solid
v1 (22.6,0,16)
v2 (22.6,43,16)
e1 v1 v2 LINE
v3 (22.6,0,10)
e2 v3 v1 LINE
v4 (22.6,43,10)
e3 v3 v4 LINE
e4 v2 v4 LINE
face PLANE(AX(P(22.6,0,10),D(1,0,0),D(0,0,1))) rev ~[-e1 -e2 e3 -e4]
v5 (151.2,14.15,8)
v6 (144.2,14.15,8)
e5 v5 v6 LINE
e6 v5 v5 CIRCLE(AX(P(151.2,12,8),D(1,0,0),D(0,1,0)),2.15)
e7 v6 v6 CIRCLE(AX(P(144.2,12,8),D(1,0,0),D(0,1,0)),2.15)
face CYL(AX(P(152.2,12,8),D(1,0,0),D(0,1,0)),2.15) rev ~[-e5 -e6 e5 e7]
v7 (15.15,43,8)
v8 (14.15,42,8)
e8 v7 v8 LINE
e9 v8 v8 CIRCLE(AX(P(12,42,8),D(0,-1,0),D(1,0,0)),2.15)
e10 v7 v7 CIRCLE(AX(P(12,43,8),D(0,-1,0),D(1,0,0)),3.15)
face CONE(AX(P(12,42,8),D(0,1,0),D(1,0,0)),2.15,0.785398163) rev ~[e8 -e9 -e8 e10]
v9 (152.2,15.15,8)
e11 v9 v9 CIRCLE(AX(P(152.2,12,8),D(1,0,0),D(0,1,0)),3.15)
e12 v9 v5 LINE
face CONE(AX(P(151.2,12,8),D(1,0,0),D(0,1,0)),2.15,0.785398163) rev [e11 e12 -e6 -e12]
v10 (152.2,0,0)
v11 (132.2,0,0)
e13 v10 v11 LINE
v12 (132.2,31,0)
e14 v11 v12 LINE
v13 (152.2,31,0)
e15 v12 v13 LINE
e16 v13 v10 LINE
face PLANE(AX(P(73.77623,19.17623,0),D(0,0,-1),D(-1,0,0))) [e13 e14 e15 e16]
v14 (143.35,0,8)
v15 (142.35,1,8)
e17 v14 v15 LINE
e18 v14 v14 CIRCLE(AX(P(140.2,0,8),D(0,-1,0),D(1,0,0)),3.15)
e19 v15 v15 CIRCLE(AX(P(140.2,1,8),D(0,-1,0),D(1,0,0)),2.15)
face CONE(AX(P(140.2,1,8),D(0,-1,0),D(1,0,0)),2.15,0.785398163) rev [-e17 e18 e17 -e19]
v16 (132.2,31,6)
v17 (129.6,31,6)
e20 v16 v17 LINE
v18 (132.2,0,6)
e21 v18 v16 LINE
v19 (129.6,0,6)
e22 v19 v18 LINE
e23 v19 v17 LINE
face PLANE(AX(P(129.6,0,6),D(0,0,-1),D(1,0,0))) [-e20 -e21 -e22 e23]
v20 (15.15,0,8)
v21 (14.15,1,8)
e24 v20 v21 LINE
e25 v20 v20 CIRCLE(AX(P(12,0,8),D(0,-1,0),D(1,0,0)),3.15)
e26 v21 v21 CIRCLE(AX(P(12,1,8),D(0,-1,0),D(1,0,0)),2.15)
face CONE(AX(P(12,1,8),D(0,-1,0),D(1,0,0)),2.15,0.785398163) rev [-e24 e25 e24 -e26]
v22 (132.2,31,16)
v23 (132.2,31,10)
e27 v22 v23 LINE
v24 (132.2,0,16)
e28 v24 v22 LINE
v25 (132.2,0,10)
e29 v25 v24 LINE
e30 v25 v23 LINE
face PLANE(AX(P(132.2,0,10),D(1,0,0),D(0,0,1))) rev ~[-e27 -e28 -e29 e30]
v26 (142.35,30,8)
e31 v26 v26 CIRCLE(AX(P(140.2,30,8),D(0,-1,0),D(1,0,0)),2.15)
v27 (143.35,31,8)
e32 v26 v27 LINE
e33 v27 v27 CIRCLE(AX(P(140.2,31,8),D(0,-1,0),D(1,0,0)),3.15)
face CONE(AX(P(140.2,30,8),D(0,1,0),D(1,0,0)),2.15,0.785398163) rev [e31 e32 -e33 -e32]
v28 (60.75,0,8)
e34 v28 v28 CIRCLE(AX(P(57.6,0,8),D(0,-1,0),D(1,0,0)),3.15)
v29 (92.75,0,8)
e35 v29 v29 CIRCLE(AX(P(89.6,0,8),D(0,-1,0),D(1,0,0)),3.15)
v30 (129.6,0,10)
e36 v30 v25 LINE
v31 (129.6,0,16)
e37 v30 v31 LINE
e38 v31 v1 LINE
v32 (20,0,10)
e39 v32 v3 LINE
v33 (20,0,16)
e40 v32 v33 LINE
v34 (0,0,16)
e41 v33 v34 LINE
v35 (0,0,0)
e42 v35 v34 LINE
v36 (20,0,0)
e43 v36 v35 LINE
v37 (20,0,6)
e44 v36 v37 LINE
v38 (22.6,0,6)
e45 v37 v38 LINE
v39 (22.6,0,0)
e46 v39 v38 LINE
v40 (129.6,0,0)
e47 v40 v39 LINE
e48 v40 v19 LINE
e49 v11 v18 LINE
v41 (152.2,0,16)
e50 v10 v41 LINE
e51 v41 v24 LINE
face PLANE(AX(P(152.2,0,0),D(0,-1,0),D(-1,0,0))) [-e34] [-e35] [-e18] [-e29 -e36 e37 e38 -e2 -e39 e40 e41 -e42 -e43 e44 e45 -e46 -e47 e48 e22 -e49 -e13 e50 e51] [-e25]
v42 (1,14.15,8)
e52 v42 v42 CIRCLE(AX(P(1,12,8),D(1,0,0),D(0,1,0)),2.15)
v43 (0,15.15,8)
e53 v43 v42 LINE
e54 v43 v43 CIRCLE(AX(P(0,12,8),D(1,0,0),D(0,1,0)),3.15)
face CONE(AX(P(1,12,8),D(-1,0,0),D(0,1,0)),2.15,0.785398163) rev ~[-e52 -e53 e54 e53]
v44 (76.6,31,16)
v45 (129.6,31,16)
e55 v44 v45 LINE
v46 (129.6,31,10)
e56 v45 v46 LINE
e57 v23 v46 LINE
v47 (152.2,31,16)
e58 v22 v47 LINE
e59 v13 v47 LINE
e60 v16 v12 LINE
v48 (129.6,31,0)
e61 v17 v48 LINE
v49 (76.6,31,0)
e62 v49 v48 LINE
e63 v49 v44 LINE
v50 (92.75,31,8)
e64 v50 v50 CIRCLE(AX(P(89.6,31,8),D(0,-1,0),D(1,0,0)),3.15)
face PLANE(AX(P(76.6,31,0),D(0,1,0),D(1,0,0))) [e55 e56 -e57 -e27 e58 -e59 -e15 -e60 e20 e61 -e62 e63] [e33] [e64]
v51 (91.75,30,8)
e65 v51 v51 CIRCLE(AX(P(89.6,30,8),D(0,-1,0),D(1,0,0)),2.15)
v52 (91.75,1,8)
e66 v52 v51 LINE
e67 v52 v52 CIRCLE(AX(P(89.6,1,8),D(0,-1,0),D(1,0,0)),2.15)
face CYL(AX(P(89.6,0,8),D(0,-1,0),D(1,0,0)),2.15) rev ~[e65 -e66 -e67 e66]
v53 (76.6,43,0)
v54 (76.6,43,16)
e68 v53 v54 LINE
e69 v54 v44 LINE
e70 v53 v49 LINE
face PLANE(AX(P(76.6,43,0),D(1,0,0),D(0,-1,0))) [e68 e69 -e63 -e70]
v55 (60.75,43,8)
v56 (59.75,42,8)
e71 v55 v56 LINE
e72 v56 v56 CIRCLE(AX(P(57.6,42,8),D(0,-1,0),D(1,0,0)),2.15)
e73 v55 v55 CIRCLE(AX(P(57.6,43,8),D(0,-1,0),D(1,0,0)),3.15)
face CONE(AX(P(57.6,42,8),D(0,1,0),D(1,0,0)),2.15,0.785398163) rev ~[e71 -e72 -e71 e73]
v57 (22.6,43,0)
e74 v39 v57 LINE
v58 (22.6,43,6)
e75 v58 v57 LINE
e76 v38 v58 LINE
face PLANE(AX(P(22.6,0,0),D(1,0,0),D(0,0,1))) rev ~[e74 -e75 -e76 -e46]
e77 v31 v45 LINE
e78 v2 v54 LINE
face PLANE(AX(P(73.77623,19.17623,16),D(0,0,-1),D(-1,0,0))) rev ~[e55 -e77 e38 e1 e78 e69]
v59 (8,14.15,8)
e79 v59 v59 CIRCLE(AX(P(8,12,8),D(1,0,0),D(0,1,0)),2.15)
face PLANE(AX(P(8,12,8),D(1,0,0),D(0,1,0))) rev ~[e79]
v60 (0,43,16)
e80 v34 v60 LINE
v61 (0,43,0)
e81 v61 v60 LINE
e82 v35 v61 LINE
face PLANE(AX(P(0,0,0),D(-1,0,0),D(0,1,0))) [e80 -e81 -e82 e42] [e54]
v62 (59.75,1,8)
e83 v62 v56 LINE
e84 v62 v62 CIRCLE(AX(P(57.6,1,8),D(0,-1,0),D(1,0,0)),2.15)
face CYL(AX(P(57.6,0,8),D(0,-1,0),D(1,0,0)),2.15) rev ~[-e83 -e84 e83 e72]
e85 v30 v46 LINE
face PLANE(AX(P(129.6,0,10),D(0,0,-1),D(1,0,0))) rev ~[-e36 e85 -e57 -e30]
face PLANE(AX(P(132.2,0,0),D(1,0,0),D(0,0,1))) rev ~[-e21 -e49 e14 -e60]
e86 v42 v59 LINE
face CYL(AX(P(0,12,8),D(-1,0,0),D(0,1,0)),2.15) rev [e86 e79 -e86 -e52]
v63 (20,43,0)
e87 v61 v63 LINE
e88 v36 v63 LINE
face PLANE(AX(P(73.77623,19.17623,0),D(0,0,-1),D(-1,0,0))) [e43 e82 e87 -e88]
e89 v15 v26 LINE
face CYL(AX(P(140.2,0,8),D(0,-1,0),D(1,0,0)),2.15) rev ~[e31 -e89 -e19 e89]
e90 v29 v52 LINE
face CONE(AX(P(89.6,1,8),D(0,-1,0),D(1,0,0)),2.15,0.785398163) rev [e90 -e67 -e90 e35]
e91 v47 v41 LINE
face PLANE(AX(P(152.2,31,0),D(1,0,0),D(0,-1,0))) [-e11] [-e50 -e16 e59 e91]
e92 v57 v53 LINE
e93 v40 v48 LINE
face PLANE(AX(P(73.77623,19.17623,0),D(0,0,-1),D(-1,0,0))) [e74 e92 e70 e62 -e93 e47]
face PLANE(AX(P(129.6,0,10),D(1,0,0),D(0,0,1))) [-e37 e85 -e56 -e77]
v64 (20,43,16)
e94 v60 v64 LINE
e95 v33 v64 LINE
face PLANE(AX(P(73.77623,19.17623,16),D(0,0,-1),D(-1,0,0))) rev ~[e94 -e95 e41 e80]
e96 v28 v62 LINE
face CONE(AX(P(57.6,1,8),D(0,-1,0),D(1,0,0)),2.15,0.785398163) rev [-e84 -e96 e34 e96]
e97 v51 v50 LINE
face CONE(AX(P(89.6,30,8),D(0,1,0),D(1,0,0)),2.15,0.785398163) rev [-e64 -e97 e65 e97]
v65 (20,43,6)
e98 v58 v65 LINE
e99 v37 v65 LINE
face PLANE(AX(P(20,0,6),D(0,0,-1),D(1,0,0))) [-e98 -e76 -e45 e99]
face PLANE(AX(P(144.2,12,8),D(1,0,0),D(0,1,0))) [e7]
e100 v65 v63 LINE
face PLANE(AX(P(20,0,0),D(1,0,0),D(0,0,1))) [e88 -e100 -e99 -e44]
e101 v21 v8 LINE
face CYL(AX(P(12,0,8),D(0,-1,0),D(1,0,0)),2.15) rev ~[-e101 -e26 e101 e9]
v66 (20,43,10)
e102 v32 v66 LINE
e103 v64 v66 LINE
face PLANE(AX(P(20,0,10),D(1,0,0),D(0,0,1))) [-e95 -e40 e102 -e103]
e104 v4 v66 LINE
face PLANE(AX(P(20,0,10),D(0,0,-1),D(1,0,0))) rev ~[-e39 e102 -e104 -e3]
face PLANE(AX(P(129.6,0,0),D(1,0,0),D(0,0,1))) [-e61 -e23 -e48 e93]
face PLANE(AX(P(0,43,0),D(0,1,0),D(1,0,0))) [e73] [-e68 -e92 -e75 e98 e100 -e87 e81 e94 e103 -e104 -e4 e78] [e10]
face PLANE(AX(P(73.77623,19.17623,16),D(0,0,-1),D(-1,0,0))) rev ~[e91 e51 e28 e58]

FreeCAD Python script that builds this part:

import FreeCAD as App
import Part
import Sketcher

V = App.Vector
Q = App.Units.Quantity


def edges_at(feature, points):
    """Names of the edges that pass closest to the given points."""
    edges = feature.Shape.Edges
    near = lambda p: min(range(len(edges)), key=lambda i: edges[i].distToShape(Part.Vertex(*p))[0])
    return sorted({f"Edge{near(p) + 1}" for p in points})

doc = App.newDocument("Part")
body = doc.addObject("PartDesign::Body", "Body")

# Sketch on XY plane
sketch1 = body.newObject("Sketcher::SketchObject", "Sketch")
sketch1.AttachmentSupport = (doc.getObject("XY_Plane"), [""])
sketch1.MapMode = "FlatFace"
sketch1.addGeometry([
    Part.LineSegment(V(0, 43, 0), V(0, 0, 0)),  # 0
    Part.LineSegment(V(0, 0, 0), V(152, 0, 0)),  # 1
    Part.LineSegment(V(152, 0, 0), V(152, 31, 0)),  # 2
    Part.LineSegment(V(152, 31, 0), V(77, 31, 0)),  # 3
    Part.LineSegment(V(77, 31, 0), V(77, 43, 0)),  # 4
    Part.LineSegment(V(77, 43, 0), V(0, 43, 0)),  # 5
], False)
sketch1.addConstraint([
    Sketcher.Constraint("Coincident", 0, 2, 1, 1),
    Sketcher.Constraint("Coincident", 1, 2, 2, 1),
    Sketcher.Constraint("Coincident", 2, 2, 3, 1),
    Sketcher.Constraint("Coincident", 3, 2, 4, 1),
    Sketcher.Constraint("Coincident", 4, 2, 5, 1),
    Sketcher.Constraint("Coincident", 5, 2, 0, 1),
    Sketcher.Constraint("Vertical", 0),
    Sketcher.Constraint("Horizontal", 1),
    Sketcher.Constraint("Vertical", 2),
    Sketcher.Constraint("Horizontal", 3),
    Sketcher.Constraint("Vertical", 4),
    Sketcher.Constraint("Horizontal", 5),
    Sketcher.Constraint("Coincident", 0, 2, -1, 1),
    Sketcher.Constraint("DistanceY", 0, 2, 0, 1, Q("43 mm")),
    Sketcher.Constraint("DistanceY", 2, 1, 2, 2, Q("31 mm")),
    Sketcher.Constraint("DistanceX", 1, 1, 1, 2, Q("152.2 mm")),
    Sketcher.Constraint("DistanceX", 3, 2, 3, 1, Q("75.6 mm")),
])
pad1 = body.newObject("PartDesign::Pad", "Pad")
pad1.Profile = sketch1
pad1.Length = 16

# Sketch on XZ plane
sketch2 = body.newObject("Sketcher::SketchObject", "Sketch001")
sketch2.AttachmentSupport = (doc.getObject("XZ_Plane"), [""])
sketch2.MapMode = "FlatFace"
sketch2.addGeometry([
    Part.Circle(V(12, 8, 0), V(0, 0, 1), 2.1),  # 0
    Part.Circle(V(89.6, 8, 0), V(0, 0, 1), 2.1),  # 1
    Part.Circle(V(140.2, 8, 0), V(0, 0, 1), 2.1),  # 2
    Part.Circle(V(57.6, 8, 0), V(0, 0, 1), 2.1),  # 3
    Part.LineSegment(V(20, 6, 0), V(20, 0, 0)),  # 4
    Part.LineSegment(V(20, 0, 0), V(22.6, 0, 0)),  # 5
    Part.LineSegment(V(22.6, 0, 0), V(22.6, 6, 0)),  # 6
    Part.LineSegment(V(22.6, 6, 0), V(20, 6, 0)),  # 7
    Part.LineSegment(V(20, 16, 0), V(20, 10, 0)),  # 8
    Part.LineSegment(V(20, 10, 0), V(22.6, 10, 0)),  # 9
    Part.LineSegment(V(22.6, 10, 0), V(22.6, 16, 0)),  # 10
    Part.LineSegment(V(22.6, 16, 0), V(20, 16, 0)),  # 11
    Part.LineSegment(V(129.6, 16, 0), V(129.6, 10, 0)),  # 12
    Part.LineSegment(V(129.6, 10, 0), V(132.2, 10, 0)),  # 13
    Part.LineSegment(V(132.2, 10, 0), V(132.2, 16, 0)),  # 14
    Part.LineSegment(V(132.2, 16, 0), V(129.6, 16, 0)),  # 15
    Part.LineSegment(V(129.6, 6, 0), V(129.6, 0, 0)),  # 16
    Part.LineSegment(V(129.6, 0, 0), V(132.2, 0, 0)),  # 17
    Part.LineSegment(V(132.2, 0, 0), V(132.2, 6, 0)),  # 18
    Part.LineSegment(V(132.2, 6, 0), V(129.6, 6, 0)),  # 19
], False)
sketch2.addConstraint([
    Sketcher.Constraint("Coincident", 4, 2, 5, 1),
    Sketcher.Constraint("Coincident", 5, 2, 6, 1),
    Sketcher.Constraint("Coincident", 6, 2, 7, 1),
    Sketcher.Constraint("Coincident", 7, 2, 4, 1),
    Sketcher.Constraint("Coincident", 8, 2, 9, 1),
    Sketcher.Constraint("Coincident", 9, 2, 10, 1),
    Sketcher.Constraint("Coincident", 10, 2, 11, 1),
    Sketcher.Constraint("Coincident", 11, 2, 8, 1),
    Sketcher.Constraint("Coincident", 12, 2, 13, 1),
    Sketcher.Constraint("Coincident", 13, 2, 14, 1),
    Sketcher.Constraint("Coincident", 14, 2, 15, 1),
    Sketcher.Constraint("Coincident", 15, 2, 12, 1),
    Sketcher.Constraint("Coincident", 16, 2, 17, 1),
    Sketcher.Constraint("Coincident", 17, 2, 18, 1),
    Sketcher.Constraint("Coincident", 18, 2, 19, 1),
    Sketcher.Constraint("Coincident", 19, 2, 16, 1),
    Sketcher.Constraint("Vertical", 4),
    Sketcher.Constraint("Horizontal", 5),
    Sketcher.Constraint("Vertical", 6),
    Sketcher.Constraint("Horizontal", 7),
    Sketcher.Constraint("Vertical", 8),
    Sketcher.Constraint("Horizontal", 9),
    Sketcher.Constraint("Vertical", 10),
    Sketcher.Constraint("Horizontal", 11),
    Sketcher.Constraint("Vertical", 12),
    Sketcher.Constraint("Horizontal", 13),
    Sketcher.Constraint("Vertical", 14),
    Sketcher.Constraint("Horizontal", 15),
    Sketcher.Constraint("Vertical", 16),
    Sketcher.Constraint("Horizontal", 17),
    Sketcher.Constraint("Vertical", 18),
    Sketcher.Constraint("Horizontal", 19),
    Sketcher.Constraint("Equal", 0, 1),
    Sketcher.Constraint("Equal", 1, 2),
    Sketcher.Constraint("Equal", 2, 3),
    Sketcher.Constraint("PointOnObject", 4, 2, -1),
    Sketcher.Constraint("PointOnObject", 16, 2, -1),
    Sketcher.Constraint("Horizontal", 0, 3, 1, 3),
    Sketcher.Constraint("Horizontal", 1, 3, 2, 3),
    Sketcher.Constraint("Horizontal", 2, 3, 3, 3),
    Sketcher.Constraint("Horizontal", 9, 2, 12, 2),
    Sketcher.Constraint("Horizontal", 11, 2, 14, 2),
    Sketcher.Constraint("Horizontal", 7, 2, 18, 2),
    Sketcher.Constraint("Vertical", 7, 2, 8, 2),
    Sketcher.Constraint("Vertical", 6, 2, 9, 2),
    Sketcher.Constraint("Vertical", 15, 2, 16, 2),
    Sketcher.Constraint("Vertical", 14, 2, 17, 2),
    Sketcher.Constraint("Equal", 11, 13),
    Sketcher.Constraint("Equal", 6, 8),
    Sketcher.Constraint("Diameter", 0, Q("4.3 mm")),
    Sketcher.Constraint("DistanceY", 4, 2, 4, 1, Q("6 mm")),
    Sketcher.Constraint("DistanceX", 5, 1, 5, 2, Q("2.6 mm")),
    Sketcher.Constraint("DistanceX", -1, 1, 0, 3, Q("12 mm")),
    Sketcher.Constraint("DistanceY", -1, 1, 0, 3, Q("8 mm")),
    Sketcher.Constraint("DistanceX", -1, 1, 4, 2, Q("20 mm")),
    Sketcher.Constraint("DistanceY", -1, 1, 8, 2, Q("10 mm")),
    Sketcher.Constraint("DistanceX", 3, 3, 1, 3, Q("32 mm")),
    Sketcher.Constraint("DistanceX", 5, 2, 3, 3, Q("35 mm")),
    Sketcher.Constraint("DistanceX", 1, 3, 12, 2, Q("40 mm")),
    Sketcher.Constraint("DistanceX", 13, 2, 2, 3, Q("8 mm")),
])
pocket1 = body.newObject("PartDesign::Pocket", "Pocket")
pocket1.Profile = sketch2
pocket1.Type = "ThroughAll"
doc.recompute()

chamfer = body.newObject("PartDesign::Chamfer", "Chamfer")
chamfer.Base = (pocket1, edges_at(pocket1, [
    (9.85, 0, 8),
    (55.45, 0, 8),
    (87.45, 0, 8),
    (138.05, 0, 8),
    (9.85, 43, 8),
    (55.45, 43, 8),
    (87.45, 31, 8),
    (138.05, 31, 8),
]))
chamfer.Size = 1

# Sketch on YZ plane
sketch3 = body.newObject("Sketcher::SketchObject", "Sketch002")
sketch3.AttachmentSupport = (doc.getObject("YZ_Plane"), [""])
sketch3.MapMode = "FlatFace"
sketch3.addGeometry(Part.Circle(V(12, 8, 0), V(0, 0, 1), 2.1), False)
sketch3.addConstraint([
    Sketcher.Constraint("Diameter", 0, Q("4.3 mm")),
    Sketcher.Constraint("DistanceX", -1, 1, 0, 3, Q("12 mm")),
    Sketcher.Constraint("DistanceY", -1, 1, 0, 3, Q("8 mm")),
])
pocket2 = body.newObject("PartDesign::Pocket", "Pocket001")
pocket2.Profile = sketch3
pocket2.Length = 8
pocket2.Reversed = True

# Sketch on YZ plane
sketch4 = body.newObject("Sketcher::SketchObject", "Sketch003")
sketch4.AttachmentSupport = (doc.getObject("YZ_Plane"), [""])
sketch4.MapMode = "FlatFace"
sketch4.AttachmentOffset = App.Placement(V(0, 0, 152.2), App.Rotation())
sketch4.addGeometry(Part.Circle(V(12, 8, 0), V(0, 0, 1), 2.1), False)
sketch4.addConstraint([
    Sketcher.Constraint("Diameter", 0, Q("4.3 mm")),
    Sketcher.Constraint("DistanceX", -1, 1, 0, 3, Q("12 mm")),
    Sketcher.Constraint("DistanceY", -1, 1, 0, 3, Q("8 mm")),
])
pocket3 = body.newObject("PartDesign::Pocket", "Pocket002")
pocket3.Profile = sketch4
pocket3.Length = 8
doc.recompute()

chamfer2 = body.newObject("PartDesign::Chamfer", "Chamfer001")
chamfer2.Base = (pocket3, edges_at(pocket3, [(152.2, 9.85, 8), (0, 9.85, 8)]))
chamfer2.Size = 1

doc.recompute()
